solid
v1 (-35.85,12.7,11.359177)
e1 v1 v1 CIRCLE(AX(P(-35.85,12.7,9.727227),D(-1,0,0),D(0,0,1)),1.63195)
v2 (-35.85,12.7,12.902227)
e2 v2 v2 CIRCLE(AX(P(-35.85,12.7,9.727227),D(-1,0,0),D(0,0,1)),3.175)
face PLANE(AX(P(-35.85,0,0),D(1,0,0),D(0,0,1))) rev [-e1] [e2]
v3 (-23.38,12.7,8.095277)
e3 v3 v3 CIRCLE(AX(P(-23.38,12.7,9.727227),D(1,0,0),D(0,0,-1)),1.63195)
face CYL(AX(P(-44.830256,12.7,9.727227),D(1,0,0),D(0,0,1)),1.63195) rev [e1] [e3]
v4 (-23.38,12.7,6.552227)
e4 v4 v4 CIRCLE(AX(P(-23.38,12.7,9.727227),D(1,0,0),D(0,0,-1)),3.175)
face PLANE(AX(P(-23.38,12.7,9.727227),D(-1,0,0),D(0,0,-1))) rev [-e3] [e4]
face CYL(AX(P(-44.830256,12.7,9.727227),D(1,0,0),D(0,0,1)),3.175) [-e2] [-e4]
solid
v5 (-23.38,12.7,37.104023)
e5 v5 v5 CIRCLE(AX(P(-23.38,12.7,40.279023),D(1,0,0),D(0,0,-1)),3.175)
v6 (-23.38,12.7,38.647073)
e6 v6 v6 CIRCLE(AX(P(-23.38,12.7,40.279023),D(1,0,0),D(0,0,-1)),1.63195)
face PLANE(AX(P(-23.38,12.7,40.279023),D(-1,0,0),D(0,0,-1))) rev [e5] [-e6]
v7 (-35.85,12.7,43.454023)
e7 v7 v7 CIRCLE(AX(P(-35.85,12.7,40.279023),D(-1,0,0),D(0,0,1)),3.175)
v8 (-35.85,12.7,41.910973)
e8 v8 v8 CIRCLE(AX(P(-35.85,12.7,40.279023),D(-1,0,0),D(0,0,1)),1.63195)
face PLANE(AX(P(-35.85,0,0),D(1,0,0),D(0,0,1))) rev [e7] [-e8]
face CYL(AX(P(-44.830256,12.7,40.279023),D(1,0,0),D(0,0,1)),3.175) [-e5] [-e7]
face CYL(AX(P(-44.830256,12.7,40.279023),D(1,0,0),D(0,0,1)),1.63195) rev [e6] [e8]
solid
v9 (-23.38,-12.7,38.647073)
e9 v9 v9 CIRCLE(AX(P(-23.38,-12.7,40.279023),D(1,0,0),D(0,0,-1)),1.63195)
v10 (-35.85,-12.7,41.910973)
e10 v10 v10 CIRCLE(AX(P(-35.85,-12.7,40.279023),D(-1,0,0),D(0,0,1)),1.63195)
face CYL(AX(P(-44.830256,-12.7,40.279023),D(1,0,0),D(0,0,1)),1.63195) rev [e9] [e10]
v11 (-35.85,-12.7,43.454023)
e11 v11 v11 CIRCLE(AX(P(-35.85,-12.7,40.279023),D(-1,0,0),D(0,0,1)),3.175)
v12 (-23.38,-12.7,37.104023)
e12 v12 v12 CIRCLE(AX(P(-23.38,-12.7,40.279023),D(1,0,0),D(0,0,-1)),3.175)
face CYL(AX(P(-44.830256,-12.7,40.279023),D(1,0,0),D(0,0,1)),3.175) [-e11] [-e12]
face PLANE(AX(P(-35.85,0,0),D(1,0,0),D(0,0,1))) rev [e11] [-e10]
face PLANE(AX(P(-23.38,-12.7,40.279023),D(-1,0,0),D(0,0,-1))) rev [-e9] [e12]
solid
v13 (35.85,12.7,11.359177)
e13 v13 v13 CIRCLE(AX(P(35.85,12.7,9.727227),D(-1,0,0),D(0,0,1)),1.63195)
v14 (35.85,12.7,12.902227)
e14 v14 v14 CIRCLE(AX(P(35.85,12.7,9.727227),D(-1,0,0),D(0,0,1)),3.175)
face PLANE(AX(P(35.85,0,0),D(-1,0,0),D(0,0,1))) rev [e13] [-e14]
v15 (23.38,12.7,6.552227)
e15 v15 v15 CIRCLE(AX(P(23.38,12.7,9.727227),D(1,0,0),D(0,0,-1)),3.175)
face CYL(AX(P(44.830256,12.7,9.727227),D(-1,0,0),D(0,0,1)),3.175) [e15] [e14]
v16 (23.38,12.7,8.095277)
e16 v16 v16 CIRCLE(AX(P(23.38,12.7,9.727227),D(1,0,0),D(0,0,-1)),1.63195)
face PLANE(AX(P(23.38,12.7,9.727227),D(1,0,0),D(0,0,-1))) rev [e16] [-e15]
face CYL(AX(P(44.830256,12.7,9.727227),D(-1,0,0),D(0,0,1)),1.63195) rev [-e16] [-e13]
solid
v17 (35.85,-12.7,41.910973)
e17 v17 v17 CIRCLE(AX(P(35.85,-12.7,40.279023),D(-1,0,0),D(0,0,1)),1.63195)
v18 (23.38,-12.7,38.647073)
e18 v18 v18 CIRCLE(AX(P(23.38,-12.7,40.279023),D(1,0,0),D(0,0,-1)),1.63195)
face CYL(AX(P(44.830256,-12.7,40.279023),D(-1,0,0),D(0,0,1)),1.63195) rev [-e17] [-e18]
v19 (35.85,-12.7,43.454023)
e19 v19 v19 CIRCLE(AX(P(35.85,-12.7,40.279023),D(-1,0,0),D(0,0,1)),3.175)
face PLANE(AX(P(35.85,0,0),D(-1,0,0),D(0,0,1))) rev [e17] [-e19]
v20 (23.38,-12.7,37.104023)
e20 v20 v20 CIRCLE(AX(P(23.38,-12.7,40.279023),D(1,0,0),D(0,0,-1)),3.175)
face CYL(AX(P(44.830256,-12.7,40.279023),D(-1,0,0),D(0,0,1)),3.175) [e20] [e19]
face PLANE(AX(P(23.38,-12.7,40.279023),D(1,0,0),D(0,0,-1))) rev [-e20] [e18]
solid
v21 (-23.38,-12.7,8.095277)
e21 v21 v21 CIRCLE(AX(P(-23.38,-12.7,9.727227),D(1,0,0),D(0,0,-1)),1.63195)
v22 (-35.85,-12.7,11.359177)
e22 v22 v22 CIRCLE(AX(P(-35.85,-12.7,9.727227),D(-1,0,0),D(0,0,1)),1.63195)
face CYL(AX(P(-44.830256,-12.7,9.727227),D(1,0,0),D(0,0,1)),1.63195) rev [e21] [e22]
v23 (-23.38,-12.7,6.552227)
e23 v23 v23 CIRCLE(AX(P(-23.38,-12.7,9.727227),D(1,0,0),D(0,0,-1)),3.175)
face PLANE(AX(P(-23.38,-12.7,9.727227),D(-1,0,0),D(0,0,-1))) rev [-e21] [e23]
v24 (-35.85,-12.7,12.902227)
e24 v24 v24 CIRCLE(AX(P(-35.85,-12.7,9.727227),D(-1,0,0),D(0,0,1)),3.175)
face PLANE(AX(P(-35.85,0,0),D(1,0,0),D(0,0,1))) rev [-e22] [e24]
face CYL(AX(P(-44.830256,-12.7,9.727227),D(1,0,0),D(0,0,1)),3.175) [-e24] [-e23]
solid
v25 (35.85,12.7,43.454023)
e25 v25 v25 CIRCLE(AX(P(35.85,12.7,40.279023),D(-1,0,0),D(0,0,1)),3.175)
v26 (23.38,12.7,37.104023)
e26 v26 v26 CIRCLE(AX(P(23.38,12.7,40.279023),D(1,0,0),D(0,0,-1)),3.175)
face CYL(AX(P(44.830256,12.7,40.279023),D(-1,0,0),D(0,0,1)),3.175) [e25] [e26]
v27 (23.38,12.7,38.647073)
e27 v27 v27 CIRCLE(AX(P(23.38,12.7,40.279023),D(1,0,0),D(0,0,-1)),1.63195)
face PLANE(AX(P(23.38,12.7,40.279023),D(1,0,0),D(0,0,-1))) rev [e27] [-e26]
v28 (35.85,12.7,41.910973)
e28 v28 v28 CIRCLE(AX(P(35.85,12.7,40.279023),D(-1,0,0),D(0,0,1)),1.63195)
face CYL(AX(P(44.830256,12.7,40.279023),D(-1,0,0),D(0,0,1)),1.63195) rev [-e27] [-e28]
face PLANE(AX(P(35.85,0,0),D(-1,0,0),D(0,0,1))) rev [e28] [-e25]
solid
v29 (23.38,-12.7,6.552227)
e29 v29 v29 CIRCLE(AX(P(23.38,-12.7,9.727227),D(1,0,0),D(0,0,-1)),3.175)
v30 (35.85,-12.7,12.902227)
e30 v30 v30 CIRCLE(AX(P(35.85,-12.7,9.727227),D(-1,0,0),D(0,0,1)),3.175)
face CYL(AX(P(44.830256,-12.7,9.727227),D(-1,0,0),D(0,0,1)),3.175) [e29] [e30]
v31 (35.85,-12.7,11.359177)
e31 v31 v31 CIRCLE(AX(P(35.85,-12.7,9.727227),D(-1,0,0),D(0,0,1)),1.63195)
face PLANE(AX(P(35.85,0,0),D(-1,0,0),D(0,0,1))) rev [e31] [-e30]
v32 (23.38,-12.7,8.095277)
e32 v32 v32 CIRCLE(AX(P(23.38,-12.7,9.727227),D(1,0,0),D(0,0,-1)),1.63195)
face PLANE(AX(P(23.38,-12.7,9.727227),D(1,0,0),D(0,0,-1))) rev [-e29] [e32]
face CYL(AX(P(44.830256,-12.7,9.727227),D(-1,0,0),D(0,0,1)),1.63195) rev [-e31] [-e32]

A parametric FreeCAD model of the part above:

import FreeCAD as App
import Part
import Sketcher
Q = App.Units.Quantity

doc = App.newDocument("Part")
body = doc.addObject("PartDesign::Body", "Body")

sketch1 = body.newObject("Sketcher::SketchObject", "Sketch")
sketch1.AttachmentSupport = (doc.getObject("YZ_Plane"), [""])
sketch1.MapMode = "FlatFace"
sketch1.AttachmentOffset = App.Placement(App.Vector(0, 0, 23.38), App.Rotation())
sketch1.addGeometry([
    Part.Circle(App.Vector(12.7, 40.3, 0), App.Vector(0, 0, 1), 3.2),
    Part.Circle(App.Vector(12.7, 40.3, 0), App.Vector(0, 0, 1), 1.6),
], False)
sketch1.addConstraint([
    Sketcher.Constraint("Coincident", 1, 3, 0, 3),
    Sketcher.Constraint("Diameter", 0, Q("0.25 in")),
    Sketcher.Constraint("Diameter", 1, Q("0.1285 in")),
    Sketcher.Constraint("DistanceX", -1, 1, 0, 3, Q("0.5 in")),
    Sketcher.Constraint("DistanceY", -1, 1, 0, 3, 40.279023),
])
pad1 = body.newObject("PartDesign::Pad", "Pad")
pad1.Profile = sketch1
pad1.Length = 12.47
body2 = doc.addObject("PartDesign::Body", "Body001")

sketch2 = body2.newObject("Sketcher::SketchObject", "Sketch001")
sketch2.AttachmentSupport = (doc.getObject("YZ_Plane001"), [""])
sketch2.MapMode = "FlatFace"
sketch2.AttachmentOffset = App.Placement(App.Vector(0, 0, 23.38), App.Rotation())
sketch2.addGeometry([
    Part.Circle(App.Vector(-12.7, 40.3, 0), App.Vector(0, 0, 1), 3.2),
    Part.Circle(App.Vector(-12.7, 40.3, 0), App.Vector(0, 0, 1), 1.6),
], False)
sketch2.addConstraint([
    Sketcher.Constraint("Coincident", 1, 3, 0, 3),
    Sketcher.Constraint("Diameter", 0, Q("0.25 in")),
    Sketcher.Constraint("Diameter", 1, Q("0.1285 in")),
    Sketcher.Constraint("DistanceX", 0, 3, -1, 1, Q("0.5 in")),
    Sketcher.Constraint("DistanceY", -1, 1, 0, 3, 40.279023),
])
pad2 = body2.newObject("PartDesign::Pad", "Pad001")
pad2.Profile = sketch2
pad2.Length = 12.47
body3 = doc.addObject("PartDesign::Body", "Body002")

sketch3 = body3.newObject("Sketcher::SketchObject", "Sketch002")
sketch3.AttachmentSupport = (doc.getObject("YZ_Plane002"), [""])
sketch3.MapMode = "FlatFace"
sketch3.AttachmentOffset = App.Placement(App.Vector(0, 0, 23.38), App.Rotation())
sketch3.addGeometry([
    Part.Circle(App.Vector(-12.7, 9.7, 0), App.Vector(0, 0, 1), 3.2),
    Part.Circle(App.Vector(-12.7, 9.7, 0), App.Vector(0, 0, 1), 1.6),
], False)
sketch3.addConstraint([
    Sketcher.Constraint("Coincident", 1, 3, 0, 3),
    Sketcher.Constraint("Diameter", 0, Q("0.25 in")),
    Sketcher.Constraint("Diameter", 1, Q("0.1285 in")),
    Sketcher.Constraint("DistanceX", 0, 3, -1, 1, Q("0.5 in")),
    Sketcher.Constraint("DistanceY", -1, 1, 0, 3, 9.727227),
])
pad3 = body3.newObject("PartDesign::Pad", "Pad002")
pad3.Profile = sketch3
pad3.Length = 12.47
body4 = doc.addObject("PartDesign::Body", "Body003")

sketch4 = body4.newObject("Sketcher::SketchObject", "Sketch003")
sketch4.AttachmentSupport = (doc.getObject("YZ_Plane003"), [""])
sketch4.MapMode = "FlatFace"
sketch4.AttachmentOffset = App.Placement(App.Vector(0, 0, 23.38), App.Rotation())
sketch4.addGeometry([
    Part.Circle(App.Vector(12.7, 9.7, 0), App.Vector(0, 0, 1), 3.2),
    Part.Circle(App.Vector(12.7, 9.7, 0), App.Vector(0, 0, 1), 1.6),
], False)
sketch4.addConstraint([
    Sketcher.Constraint("Coincident", 1, 3, 0, 3),
    Sketcher.Constraint("Diameter", 0, Q("0.25 in")),
    Sketcher.Constraint("Diameter", 1, Q("0.1285 in")),
    Sketcher.Constraint("DistanceX", -1, 1, 0, 3, Q("0.5 in")),
    Sketcher.Constraint("DistanceY", -1, 1, 0, 3, 9.727227),
])
pad4 = body4.newObject("PartDesign::Pad", "Pad003")
pad4.Profile = sketch4
pad4.Length = 12.47
body5 = doc.addObject("PartDesign::Body", "Body004")
doc.recompute()

mirroring = doc.addObject("Part::Mirroring", "Mirroring")
mirroring.Source = body4
mirroring.Base = App.Vector(0, 0, 0)
mirroring.Normal = App.Vector(1, 0, 0)
body5.BaseFeature = mirroring
doc.recompute()
body6 = doc.addObject("PartDesign::Body", "Body005")
doc.recompute()

mirroring2 = doc.addObject("Part::Mirroring", "Mirroring001")
mirroring2.Source = body
mirroring2.Base = App.Vector(0, 0, 0)
mirroring2.Normal = App.Vector(1, 0, 0)
body6.BaseFeature = mirroring2
doc.recompute()
body7 = doc.addObject("PartDesign::Body", "Body006")
doc.recompute()

mirroring3 = doc.addObject("Part::Mirroring", "Mirroring002")
mirroring3.Source = body2
mirroring3.Base = App.Vector(0, 0, 0)
mirroring3.Normal = App.Vector(1, 0, 0)
body7.BaseFeature = mirroring3
doc.recompute()
body8 = doc.addObject("PartDesign::Body", "Body007")
doc.recompute()

mirroring4 = doc.addObject("Part::Mirroring", "Mirroring003")
mirroring4.Source = body3
mirroring4.Base = App.Vector(0, 0, 0)
mirroring4.Normal = App.Vector(1, 0, 0)
body8.BaseFeature = mirroring4
doc.recompute()
mirroring.Visibility = False
mirroring2.Visibility = False
mirroring3.Visibility = False
mirroring4.Visibility = False

doc.recompute()
